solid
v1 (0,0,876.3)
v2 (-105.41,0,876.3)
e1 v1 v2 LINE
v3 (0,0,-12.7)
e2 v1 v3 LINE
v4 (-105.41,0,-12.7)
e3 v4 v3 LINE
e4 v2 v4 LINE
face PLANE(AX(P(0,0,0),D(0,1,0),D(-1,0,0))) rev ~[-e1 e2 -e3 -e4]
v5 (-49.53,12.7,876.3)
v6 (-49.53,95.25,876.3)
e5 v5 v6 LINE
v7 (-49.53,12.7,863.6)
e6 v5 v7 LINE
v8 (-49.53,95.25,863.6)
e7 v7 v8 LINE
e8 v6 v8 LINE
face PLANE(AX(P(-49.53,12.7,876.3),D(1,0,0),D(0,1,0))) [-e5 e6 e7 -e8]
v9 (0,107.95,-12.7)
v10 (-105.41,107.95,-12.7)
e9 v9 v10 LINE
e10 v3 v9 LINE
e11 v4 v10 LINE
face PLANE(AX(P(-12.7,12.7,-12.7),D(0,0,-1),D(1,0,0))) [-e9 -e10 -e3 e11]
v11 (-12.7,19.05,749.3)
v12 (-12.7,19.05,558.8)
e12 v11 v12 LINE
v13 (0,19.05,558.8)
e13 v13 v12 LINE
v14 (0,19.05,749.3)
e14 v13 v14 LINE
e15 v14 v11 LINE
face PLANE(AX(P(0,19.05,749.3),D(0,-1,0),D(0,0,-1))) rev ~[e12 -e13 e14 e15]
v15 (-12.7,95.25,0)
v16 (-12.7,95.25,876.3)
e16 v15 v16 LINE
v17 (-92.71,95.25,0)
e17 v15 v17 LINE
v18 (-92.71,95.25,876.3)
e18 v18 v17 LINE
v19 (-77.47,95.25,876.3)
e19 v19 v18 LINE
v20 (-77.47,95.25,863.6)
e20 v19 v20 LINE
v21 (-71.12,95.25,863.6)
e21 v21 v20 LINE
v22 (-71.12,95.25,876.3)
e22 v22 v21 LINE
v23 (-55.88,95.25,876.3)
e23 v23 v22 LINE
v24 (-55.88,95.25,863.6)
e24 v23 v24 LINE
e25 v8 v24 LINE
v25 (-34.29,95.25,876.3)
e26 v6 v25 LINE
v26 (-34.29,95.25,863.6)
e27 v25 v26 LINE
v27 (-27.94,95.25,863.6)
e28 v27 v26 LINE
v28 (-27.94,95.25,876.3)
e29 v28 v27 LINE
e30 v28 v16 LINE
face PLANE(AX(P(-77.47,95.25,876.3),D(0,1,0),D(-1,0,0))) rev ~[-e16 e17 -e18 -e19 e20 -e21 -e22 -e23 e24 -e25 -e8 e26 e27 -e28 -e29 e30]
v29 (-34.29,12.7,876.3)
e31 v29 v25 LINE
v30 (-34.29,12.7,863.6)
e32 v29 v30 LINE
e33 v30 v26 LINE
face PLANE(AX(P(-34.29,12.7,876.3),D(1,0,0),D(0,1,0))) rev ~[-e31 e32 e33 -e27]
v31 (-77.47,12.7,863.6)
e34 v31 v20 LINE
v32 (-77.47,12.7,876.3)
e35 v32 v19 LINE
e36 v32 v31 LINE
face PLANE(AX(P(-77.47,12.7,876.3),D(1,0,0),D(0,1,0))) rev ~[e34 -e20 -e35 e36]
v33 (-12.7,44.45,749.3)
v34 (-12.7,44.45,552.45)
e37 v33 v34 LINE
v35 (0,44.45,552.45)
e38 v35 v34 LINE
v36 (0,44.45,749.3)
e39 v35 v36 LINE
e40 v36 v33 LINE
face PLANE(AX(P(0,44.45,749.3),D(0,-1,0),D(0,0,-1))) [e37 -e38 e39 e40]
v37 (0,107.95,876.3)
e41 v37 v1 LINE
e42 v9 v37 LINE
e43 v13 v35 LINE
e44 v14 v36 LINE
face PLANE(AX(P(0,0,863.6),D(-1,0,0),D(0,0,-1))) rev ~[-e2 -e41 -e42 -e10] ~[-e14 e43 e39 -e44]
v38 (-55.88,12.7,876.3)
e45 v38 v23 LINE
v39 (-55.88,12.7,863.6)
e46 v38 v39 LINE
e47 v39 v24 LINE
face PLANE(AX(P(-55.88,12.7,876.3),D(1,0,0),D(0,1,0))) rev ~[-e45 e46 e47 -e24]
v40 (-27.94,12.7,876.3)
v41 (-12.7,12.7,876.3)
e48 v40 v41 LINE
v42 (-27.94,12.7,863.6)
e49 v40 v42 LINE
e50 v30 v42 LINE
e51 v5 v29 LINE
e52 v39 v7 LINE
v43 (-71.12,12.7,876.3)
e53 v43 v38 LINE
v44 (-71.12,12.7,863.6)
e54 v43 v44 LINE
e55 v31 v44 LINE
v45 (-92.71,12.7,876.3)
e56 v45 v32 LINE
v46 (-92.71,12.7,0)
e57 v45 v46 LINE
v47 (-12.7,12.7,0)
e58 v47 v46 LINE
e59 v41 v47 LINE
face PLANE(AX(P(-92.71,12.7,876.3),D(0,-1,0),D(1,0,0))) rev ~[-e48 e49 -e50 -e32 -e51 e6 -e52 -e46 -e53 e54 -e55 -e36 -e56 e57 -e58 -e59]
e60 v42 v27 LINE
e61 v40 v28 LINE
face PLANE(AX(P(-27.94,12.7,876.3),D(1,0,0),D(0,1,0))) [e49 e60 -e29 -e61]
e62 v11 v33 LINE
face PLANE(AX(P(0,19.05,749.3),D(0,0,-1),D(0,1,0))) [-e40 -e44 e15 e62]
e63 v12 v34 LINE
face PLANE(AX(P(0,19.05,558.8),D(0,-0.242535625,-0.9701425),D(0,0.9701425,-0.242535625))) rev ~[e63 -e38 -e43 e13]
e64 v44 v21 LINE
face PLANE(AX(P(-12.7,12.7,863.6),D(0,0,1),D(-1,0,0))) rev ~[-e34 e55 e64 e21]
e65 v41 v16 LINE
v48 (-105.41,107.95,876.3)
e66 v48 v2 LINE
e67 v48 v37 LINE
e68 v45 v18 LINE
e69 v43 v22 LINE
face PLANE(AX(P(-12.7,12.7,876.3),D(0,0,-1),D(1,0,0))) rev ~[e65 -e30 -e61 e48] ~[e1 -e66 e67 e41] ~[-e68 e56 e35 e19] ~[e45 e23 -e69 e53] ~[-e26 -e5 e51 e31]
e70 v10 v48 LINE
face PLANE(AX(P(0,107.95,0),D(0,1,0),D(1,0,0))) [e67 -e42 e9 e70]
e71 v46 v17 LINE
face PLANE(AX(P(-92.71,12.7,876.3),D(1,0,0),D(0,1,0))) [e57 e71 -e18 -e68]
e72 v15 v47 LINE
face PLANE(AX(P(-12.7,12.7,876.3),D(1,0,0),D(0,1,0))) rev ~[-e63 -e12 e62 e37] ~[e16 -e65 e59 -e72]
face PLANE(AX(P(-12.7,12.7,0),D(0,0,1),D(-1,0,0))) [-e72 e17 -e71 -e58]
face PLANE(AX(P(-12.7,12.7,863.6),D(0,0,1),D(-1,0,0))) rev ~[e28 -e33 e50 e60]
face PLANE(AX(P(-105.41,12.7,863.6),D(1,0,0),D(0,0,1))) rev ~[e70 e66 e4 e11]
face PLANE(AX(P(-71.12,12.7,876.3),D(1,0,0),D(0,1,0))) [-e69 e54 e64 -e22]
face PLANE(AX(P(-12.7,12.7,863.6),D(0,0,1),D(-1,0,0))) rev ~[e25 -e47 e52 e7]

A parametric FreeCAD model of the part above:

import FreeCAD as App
import Part
import Sketcher

V = App.Vector
Q = App.Units.Quantity


def add_polygon(sketch, points):
    """Adds a closed chain of lines whose ends are joined by coincident constraints."""
    first, n = sketch.GeometryCount, len(points)
    for a, b in zip(points, points[1:] + points[:1]):
        sketch.addGeometry(Part.LineSegment(App.Vector(*a, 0), App.Vector(*b, 0)), False)
    for i in range(n):
        sketch.addConstraint(Sketcher.Constraint("Coincident", first + i, 2, first + (i + 1) % n, 1))

doc = App.newDocument("Part")
body = doc.addObject("PartDesign::Body", "Body")
body.AllowCompound = True

# Sketch on XZ plane
sketch1 = body.newObject("Sketcher::SketchObject", "Sketch")
sketch1.AttachmentSupport = (doc.getObject("XZ_Plane"), [""])
sketch1.MapMode = "FlatFace"
add_polygon(sketch1, [(0, 864), (0, 0), (-105, 0), (-105, 864)])  # lines 0-3
sketch1.addConstraint([
    Sketcher.Constraint("Vertical", 0),
    Sketcher.Constraint("Horizontal", 1),
    Sketcher.Constraint("Vertical", 2),
    Sketcher.Constraint("Horizontal", 3),
    Sketcher.Constraint("Coincident", 0, 2, -1, 1),
    Sketcher.Constraint("DistanceY", 0, 2, 0, 1, Q("34 in")),
    Sketcher.Constraint("DistanceX", 1, 2, 1, 1, Q("4.15 in")),
])
pad1 = body.newObject("PartDesign::Pad", "Pad")
pad1.Profile = sketch1
pad1.Length = Q("0.5 in")
pad1.Reversed = True

# Sketch on XZ plane
sketch2 = body.newObject("Sketcher::SketchObject", "Sketch001")
sketch2.AttachmentSupport = (doc.getObject("XZ_Plane"), [""])
sketch2.MapMode = "FlatFace"
sketch2.AttachmentOffset = App.Placement(V(0, 0, -0.5 * 25.4), App.Rotation())
add_polygon(sketch2, [(0, -13), (-105, -13), (-105, 876), (0, 876)])  # lines 0-3
add_polygon(sketch2, [(-13, 0), (-13, 864), (-93, 864), (-93, 0)])  # lines 4-7
sketch2.addConstraint([
    Sketcher.Constraint("Horizontal", 0),
    Sketcher.Constraint("Vertical", 1),
    Sketcher.Constraint("Horizontal", 2),
    Sketcher.Constraint("Vertical", 3),
    Sketcher.Constraint("Vertical", 4),
    Sketcher.Constraint("Horizontal", 5),
    Sketcher.Constraint("Vertical", 6),
    Sketcher.Constraint("Horizontal", 7),
    Sketcher.Constraint("PointOnObject", 2, 2, -2),
    Sketcher.Constraint("PointOnObject", 6, 2, -1),
    Sketcher.Constraint("DistanceY", 0, 2, -1, 1, Q("0.5 in")),
    Sketcher.Constraint("DistanceX", 4, 2, -1, 1, Q("0.5 in")),
    Sketcher.Constraint("DistanceY", 4, 2, 2, 2, Q("0.5 in")),
    Sketcher.Constraint("DistanceX", 1, 2, 5, 2, Q("0.5 in")),
    Sketcher.Constraint("DistanceY", 1, 1, 1, 2, Q("35 in")),
    Sketcher.Constraint("DistanceX", 0, 2, 0, 1, Q("4.15 in")),
])
pad2 = body.newObject("PartDesign::Pad", "Pad001")
pad2.Profile = sketch2
pad2.Type = "TwoLengths"
pad2.Length = Q("3.75 in")
pad2.Length2 = Q("0.5 in")
pad2.Reversed = True

# Sketch on XY plane
sketch3 = body.newObject("Sketcher::SketchObject", "Sketch002")
sketch3.AttachmentSupport = (doc.getObject("XY_Plane"), [""])
sketch3.MapMode = "FlatFace"
sketch3.AttachmentOffset = App.Placement(V(0, 0, 34.5 * 25.4), App.Rotation())
add_polygon(sketch3, [(-93, 95), (-93, 13), (-77, 13), (-77, 95)])  # lines 0-3
add_polygon(sketch3, [(-50, 95), (-50, 13), (-34, 13), (-34, 95)])  # lines 4-7
add_polygon(sketch3, [(-71, 95), (-71, 13), (-56, 13), (-56, 95)])  # lines 8-11
add_polygon(sketch3, [(-28, 95), (-28, 13), (-13, 13), (-13, 95)])  # lines 12-15
sketch3.addConstraint([
    Sketcher.Constraint("Vertical", 0),
    Sketcher.Constraint("Horizontal", 1),
    Sketcher.Constraint("Vertical", 2),
    Sketcher.Constraint("Horizontal", 3),
    Sketcher.Constraint("Vertical", 4),
    Sketcher.Constraint("Horizontal", 5),
    Sketcher.Constraint("Vertical", 6),
    Sketcher.Constraint("Horizontal", 7),
    Sketcher.Constraint("Vertical", 8),
    Sketcher.Constraint("Horizontal", 9),
    Sketcher.Constraint("Vertical", 10),
    Sketcher.Constraint("Horizontal", 11),
    Sketcher.Constraint("Vertical", 12),
    Sketcher.Constraint("Horizontal", 13),
    Sketcher.Constraint("Vertical", 14),
    Sketcher.Constraint("Horizontal", 15),
    Sketcher.Constraint("Horizontal", 1, 2, 4, 2),
    Sketcher.Constraint("Horizontal", 3, 2, 6, 2),
    Sketcher.Constraint("Horizontal", 5, 2, 8, 2),
    Sketcher.Constraint("Horizontal", 7, 2, 10, 2),
    Sketcher.Constraint("Horizontal", 9, 2, 12, 2),
    Sketcher.Constraint("Horizontal", 11, 2, 14, 2),
    Sketcher.Constraint("Equal", 3, 5),
    Sketcher.Constraint("Equal", 7, 9),
    Sketcher.Constraint("Equal", 11, 13),
    Sketcher.Constraint("DistanceX", 1, 1, 1, 2, Q("0.6 in")),
    Sketcher.Constraint("DistanceY", 0, 2, 0, 1, Q("3.25 in")),
    Sketcher.Constraint("DistanceX", 1, 2, 8, 2, Q("0.25 in")),
    Sketcher.Constraint("DistanceX", 9, 2, 4, 2, Q("0.25 in")),
    Sketcher.Constraint("DistanceX", 5, 2, 12, 2, Q("0.25 in")),
    Sketcher.Constraint("DistanceY", -1, 1, 0, 2, Q("0.5 in")),
    Sketcher.Constraint("DistanceX", 8, 2, -1, 1, Q("2.8 in")),
])
pocket1 = body.newObject("PartDesign::Pocket", "Pocket")
pocket1.Profile = sketch3
pocket1.Length = Q("3.75 in")

# Sketch on XY plane
sketch4 = body.newObject("Sketcher::SketchObject", "Sketch003")
sketch4.AttachmentSupport = (doc.getObject("XY_Plane"), [""])
sketch4.MapMode = "FlatFace"
sketch4.AttachmentOffset = App.Placement(V(0, 0, 34.5 * 25.4), App.Rotation())
sketch4.addGeometry(Part.Circle(V(-53, 134, 0), V(0, 0, 1), 26), False)
sketch4.addConstraint([
    Sketcher.Constraint("Diameter", 0, Q("2.075 in")),
    Sketcher.Constraint("DistanceX", 0, 3, -1, 1, Q("2.075 in")),
    Sketcher.Constraint("DistanceY", -1, 1, 0, 3, Q("5.2875 in")),
])
pad3 = body.newObject("PartDesign::Pad", "Pad002")
pad3.Profile = sketch4
pad3.Length = Q("50 in")
pad3.Reversed = True

# Sketch on YZ plane
sketch5 = body.newObject("Sketcher::SketchObject", "Sketch004")
sketch5.AttachmentSupport = (doc.getObject("YZ_Plane"), [""])
sketch5.MapMode = "FlatFace"
add_polygon(sketch5, [(19, 749), (19, 559), (44, 552), (44, 749)])  # lines 0-3
sketch5.addConstraint([
    Sketcher.Constraint("Vertical", 0),
    Sketcher.Constraint("Vertical", 2),
    Sketcher.Constraint("Horizontal", 3),
    Sketcher.Constraint("DistanceX", 3, 2, 3, 1, Q("1 in")),
    Sketcher.Constraint("DistanceY", 0, 2, 0, 1, Q("7.5 in")),
    Sketcher.Constraint("DistanceY", 2, 1, 2, 2, Q("7.75 in")),
    Sketcher.Constraint("DistanceX", -1, 1, 0, 2, Q("0.75 in")),
    Sketcher.Constraint("DistanceY", -1, 1, 0, 2, Q("22 in")),
])
pocket2 = body.newObject("PartDesign::Pocket", "Pocket001")
pocket2.Profile = sketch5
pocket2.Length = Q("0.6 in")

# Sketch on XZ plane
sketch6 = body.newObject("Sketcher::SketchObject", "Sketch005")
sketch6.AttachmentSupport = (doc.getObject("XZ_Plane"), [""])
sketch6.MapMode = "FlatFace"
sketch6.AttachmentOffset = App.Placement(V(0, 0, -4.25 * 25.4), App.Rotation())
add_polygon(sketch6, [(-105, 876), (0, 876), (0, -13), (-105, -13)])  # lines 0-3
sketch6.addConstraint([
    Sketcher.Constraint("Horizontal", 0),
    Sketcher.Constraint("Vertical", 1),
    Sketcher.Constraint("Horizontal", 2),
    Sketcher.Constraint("Vertical", 3),
    Sketcher.Constraint("PointOnObject", 0, 2, -2),
    Sketcher.Constraint("DistanceY", 1, 2, 1, 1, Q("35 in")),
    Sketcher.Constraint("DistanceX", 0, 1, 0, 2, Q("4.15 in")),
    Sketcher.Constraint("DistanceY", -1, 1, 0, 2, Q("34.5 in")),
])
pad4 = body.newObject("PartDesign::Pad", "Pad003")
pad4.Profile = sketch6
pad4.Length = Q("0.5 in")

# Sketch on XY plane
sketch7 = body.newObject("Sketcher::SketchObject", "Sketch006")
sketch7.AttachmentSupport = (doc.getObject("XY_Plane"), [""])
sketch7.MapMode = "FlatFace"
sketch7.AttachmentOffset = App.Placement(V(0, 0, 34.5 * 25.4), App.Rotation())
add_polygon(sketch7, [(-92, 374), (-92, 108), (249, 108), (249, 374)])  # lines 0-3
sketch7.addConstraint([
    Sketcher.Constraint("Vertical", 0),
    Sketcher.Constraint("Horizontal", 1),
    Sketcher.Constraint("Vertical", 2),
    Sketcher.Constraint("Horizontal", 3),
    Sketcher.Constraint("DistanceY", -1, 1, 0, 2, Q("4.25 in")),
    Sketcher.Constraint("DistanceX", 1, 1, 1, 2, 341.096),
    Sketcher.Constraint("DistanceY", 0, 2, 0, 1, 266.3465),
    Sketcher.Constraint("DistanceX", 0, 2, -1, 1, 92.216),
])
pocket3 = body.newObject("PartDesign::Pocket", "Pocket002")
pocket3.Profile = sketch7
pocket3.Type = "ThroughAll"

doc.recompute()
